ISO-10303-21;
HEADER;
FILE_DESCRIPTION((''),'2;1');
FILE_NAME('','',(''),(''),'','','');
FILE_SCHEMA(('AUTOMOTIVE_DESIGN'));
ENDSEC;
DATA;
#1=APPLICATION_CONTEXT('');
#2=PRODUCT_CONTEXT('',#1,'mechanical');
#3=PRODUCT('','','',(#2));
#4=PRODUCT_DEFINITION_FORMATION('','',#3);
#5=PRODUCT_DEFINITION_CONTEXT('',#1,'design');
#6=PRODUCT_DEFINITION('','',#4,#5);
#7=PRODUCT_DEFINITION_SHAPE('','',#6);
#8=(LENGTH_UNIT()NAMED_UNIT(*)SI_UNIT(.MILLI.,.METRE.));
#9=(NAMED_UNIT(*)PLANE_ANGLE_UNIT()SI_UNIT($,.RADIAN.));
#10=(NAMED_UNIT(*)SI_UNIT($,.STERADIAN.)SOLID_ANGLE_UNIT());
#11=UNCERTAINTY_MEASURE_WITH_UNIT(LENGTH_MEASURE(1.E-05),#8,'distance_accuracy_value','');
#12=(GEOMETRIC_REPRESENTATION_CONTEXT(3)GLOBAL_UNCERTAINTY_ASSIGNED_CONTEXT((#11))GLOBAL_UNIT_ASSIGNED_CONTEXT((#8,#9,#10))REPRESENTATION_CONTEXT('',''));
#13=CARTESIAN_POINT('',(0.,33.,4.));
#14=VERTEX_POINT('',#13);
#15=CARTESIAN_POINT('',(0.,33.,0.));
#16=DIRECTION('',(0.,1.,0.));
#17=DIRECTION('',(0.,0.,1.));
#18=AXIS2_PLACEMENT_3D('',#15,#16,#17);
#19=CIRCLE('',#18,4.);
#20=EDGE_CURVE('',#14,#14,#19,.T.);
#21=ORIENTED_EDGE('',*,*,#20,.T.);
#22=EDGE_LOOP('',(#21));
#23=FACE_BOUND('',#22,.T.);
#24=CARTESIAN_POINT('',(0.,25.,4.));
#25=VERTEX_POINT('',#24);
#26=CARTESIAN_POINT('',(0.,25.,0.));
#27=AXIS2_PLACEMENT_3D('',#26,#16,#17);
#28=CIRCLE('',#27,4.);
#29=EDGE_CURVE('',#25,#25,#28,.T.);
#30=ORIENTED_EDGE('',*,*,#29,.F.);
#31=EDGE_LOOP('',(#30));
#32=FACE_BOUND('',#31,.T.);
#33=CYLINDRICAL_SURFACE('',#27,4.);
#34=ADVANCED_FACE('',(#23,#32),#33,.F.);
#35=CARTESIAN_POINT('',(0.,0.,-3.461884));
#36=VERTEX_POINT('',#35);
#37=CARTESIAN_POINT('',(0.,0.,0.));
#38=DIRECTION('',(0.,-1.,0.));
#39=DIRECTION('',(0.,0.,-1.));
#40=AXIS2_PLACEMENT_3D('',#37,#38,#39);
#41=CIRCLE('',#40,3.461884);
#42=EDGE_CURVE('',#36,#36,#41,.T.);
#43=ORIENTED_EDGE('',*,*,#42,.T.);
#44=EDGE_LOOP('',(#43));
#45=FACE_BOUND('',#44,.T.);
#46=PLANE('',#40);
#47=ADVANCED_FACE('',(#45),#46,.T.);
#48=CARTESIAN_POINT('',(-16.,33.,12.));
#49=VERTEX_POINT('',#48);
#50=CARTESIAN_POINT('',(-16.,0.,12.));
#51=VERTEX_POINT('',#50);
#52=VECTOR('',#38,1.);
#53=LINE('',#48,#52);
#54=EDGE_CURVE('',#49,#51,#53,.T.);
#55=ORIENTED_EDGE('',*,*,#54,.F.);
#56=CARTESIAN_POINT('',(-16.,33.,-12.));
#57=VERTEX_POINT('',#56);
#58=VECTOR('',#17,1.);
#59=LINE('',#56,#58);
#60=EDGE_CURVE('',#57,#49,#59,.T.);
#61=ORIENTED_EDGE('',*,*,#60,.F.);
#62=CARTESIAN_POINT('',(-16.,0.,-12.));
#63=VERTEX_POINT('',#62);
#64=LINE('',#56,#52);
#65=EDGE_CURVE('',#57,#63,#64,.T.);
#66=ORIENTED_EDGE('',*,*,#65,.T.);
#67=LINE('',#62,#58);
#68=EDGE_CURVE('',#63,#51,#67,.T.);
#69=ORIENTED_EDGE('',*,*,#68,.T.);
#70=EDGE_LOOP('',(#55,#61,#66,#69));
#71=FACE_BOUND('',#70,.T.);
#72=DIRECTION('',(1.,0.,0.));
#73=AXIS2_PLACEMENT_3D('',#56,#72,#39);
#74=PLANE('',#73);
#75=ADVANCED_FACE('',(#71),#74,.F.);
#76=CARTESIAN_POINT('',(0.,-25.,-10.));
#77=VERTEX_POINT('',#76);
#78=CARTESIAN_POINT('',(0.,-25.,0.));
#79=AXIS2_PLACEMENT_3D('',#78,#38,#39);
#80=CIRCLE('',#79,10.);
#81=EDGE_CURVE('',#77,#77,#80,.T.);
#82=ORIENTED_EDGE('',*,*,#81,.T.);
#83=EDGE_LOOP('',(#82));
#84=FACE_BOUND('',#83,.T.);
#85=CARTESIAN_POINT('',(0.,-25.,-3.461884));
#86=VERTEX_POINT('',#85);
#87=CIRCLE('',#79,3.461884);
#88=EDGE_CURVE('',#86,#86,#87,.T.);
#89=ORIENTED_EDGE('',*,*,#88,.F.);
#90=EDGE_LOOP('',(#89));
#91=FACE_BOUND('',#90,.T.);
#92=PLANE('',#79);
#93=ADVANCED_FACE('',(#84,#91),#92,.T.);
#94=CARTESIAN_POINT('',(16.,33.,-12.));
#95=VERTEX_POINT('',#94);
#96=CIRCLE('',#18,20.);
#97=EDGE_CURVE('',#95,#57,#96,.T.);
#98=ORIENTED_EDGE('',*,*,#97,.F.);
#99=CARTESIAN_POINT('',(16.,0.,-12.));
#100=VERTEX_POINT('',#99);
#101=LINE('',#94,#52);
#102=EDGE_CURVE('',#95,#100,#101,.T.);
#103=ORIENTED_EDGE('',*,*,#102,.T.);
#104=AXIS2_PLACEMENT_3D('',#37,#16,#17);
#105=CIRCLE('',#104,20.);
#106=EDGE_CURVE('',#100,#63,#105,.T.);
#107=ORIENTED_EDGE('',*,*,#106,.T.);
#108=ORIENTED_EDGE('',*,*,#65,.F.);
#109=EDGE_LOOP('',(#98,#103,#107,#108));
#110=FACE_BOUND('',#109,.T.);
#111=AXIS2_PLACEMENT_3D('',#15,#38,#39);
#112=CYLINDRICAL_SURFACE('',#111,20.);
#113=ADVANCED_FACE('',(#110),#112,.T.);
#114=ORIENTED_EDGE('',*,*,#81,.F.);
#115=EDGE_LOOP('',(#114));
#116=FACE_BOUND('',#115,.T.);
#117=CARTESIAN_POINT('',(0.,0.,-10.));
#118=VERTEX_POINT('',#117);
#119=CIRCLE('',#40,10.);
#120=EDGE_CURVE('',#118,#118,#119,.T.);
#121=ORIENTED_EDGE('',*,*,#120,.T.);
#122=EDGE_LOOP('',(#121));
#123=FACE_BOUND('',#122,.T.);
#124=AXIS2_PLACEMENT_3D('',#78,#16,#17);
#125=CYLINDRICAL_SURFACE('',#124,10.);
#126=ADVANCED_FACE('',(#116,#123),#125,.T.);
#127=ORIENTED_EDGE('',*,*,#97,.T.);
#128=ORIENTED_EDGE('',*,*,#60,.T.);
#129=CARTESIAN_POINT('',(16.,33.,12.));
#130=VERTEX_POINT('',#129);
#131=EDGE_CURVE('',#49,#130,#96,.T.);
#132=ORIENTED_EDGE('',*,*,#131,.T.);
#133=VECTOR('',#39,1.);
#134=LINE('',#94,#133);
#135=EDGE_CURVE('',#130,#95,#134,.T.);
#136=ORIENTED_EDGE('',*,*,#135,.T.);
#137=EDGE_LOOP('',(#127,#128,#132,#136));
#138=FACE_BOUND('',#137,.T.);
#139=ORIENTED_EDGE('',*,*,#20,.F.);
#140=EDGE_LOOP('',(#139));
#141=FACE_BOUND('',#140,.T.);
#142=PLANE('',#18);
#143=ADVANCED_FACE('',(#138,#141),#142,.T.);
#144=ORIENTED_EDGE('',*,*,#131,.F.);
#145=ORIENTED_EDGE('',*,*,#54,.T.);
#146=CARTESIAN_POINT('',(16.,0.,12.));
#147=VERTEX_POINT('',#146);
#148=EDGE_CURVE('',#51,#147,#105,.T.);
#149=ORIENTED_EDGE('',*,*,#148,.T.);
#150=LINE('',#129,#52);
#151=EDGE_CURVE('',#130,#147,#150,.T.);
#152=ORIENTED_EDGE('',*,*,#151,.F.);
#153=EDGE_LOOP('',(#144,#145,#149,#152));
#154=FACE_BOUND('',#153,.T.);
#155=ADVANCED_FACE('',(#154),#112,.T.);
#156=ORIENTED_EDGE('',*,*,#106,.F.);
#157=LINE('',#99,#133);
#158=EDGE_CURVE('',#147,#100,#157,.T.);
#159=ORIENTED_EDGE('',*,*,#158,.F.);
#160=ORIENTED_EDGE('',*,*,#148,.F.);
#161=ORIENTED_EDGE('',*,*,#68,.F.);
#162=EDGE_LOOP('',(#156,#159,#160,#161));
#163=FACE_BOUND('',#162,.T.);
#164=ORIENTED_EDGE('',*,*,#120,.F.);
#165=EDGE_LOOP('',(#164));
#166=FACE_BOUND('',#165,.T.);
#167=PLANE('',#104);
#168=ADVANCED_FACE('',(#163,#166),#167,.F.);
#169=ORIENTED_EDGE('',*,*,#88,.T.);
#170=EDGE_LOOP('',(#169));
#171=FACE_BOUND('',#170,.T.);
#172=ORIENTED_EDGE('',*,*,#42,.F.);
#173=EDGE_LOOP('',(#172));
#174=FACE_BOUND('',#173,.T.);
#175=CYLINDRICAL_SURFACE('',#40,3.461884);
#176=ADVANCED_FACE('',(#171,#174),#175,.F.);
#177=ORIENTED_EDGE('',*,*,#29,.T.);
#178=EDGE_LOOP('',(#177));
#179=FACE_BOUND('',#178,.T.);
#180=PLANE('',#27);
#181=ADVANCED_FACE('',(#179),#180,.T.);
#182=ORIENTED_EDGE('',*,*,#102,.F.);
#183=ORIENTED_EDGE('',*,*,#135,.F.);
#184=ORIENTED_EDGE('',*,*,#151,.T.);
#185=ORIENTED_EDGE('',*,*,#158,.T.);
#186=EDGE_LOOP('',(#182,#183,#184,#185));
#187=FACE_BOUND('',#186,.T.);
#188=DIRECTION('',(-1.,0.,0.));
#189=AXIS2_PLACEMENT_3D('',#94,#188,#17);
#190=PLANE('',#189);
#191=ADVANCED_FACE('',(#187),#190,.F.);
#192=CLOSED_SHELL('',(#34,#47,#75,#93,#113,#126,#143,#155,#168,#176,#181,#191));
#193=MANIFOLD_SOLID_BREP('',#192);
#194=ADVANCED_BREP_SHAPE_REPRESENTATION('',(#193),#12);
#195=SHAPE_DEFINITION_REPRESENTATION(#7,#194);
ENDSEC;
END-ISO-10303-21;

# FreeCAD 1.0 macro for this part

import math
import FreeCAD as App
import Part
import Sketcher
from FreeCAD import Vector
Q = App.Units.Quantity

doc = App.newDocument("Part")
body = doc.addObject("PartDesign::Body", "Body")

sketch1 = body.newObject("Sketcher::SketchObject", "Sketch")
sketch1.AttachmentSupport = (doc.getObject("XZ_Plane"), [""])
sketch1.MapMode = "FlatFace"
sketch1.addGeometry([
    Part.LineSegment(Vector(-16, -12, 0), Vector(-16, 12, 0)),
    Part.ArcOfCircle(Part.Circle(Vector(0, 0, 0), Vector(0, 0, 1), 20), math.radians(37), math.radians(143)),
    Part.LineSegment(Vector(16, 12, 0), Vector(16, -12, 0)),
    Part.ArcOfCircle(Part.Circle(Vector(0, 0, 0), Vector(0, 0, 1), 20), math.radians(-143), math.radians(-37)),
], False)
sketch1.addConstraint([
    Sketcher.Constraint("Coincident", 0, 2, 1, 2),
    Sketcher.Constraint("Coincident", 1, 1, 2, 1),
    Sketcher.Constraint("Coincident", 2, 2, 3, 2),
    Sketcher.Constraint("Coincident", 3, 1, 0, 1),
    Sketcher.Constraint("Vertical", 0),
    Sketcher.Constraint("Vertical", 2),
    Sketcher.Constraint("Coincident", 1, 3, -1, 1),
    Sketcher.Constraint("Coincident", 3, 3, -1, 1),
    Sketcher.Constraint("Equal", 1, 3),
    Sketcher.Constraint("Horizontal", 0, 2, 1, 1),
    Sketcher.Constraint("Radius", 1, Q("20 mm")),
    Sketcher.Constraint("DistanceY", 0, 1, 0, 2, Q("24 mm")),
])
pad1 = body.newObject("PartDesign::Pad", "Pad")
pad1.Profile = sketch1
pad1.Length = 33
pad1.Reversed = True

sketch2 = body.newObject("Sketcher::SketchObject", "Sketch001")
sketch2.AttachmentSupport = (doc.getObject("XZ_Plane"), [""])
sketch2.MapMode = "FlatFace"
sketch2.addGeometry(Part.Circle(Vector(0, 0, 0), Vector(0, 0, 1), 10), False)
sketch2.addConstraint([
    Sketcher.Constraint("Coincident", 0, 3, -1, 1),
    Sketcher.Constraint("Diameter", 0, Q("20 mm")),
])
pad2 = body.newObject("PartDesign::Pad", "Pad001")
pad2.Profile = sketch2
pad2.Length = 25

sketch3 = body.newObject("Sketcher::SketchObject", "Sketch002")
sketch3.AttachmentSupport = (doc.getObject("XZ_Plane"), [""])
sketch3.MapMode = "FlatFace"
sketch3.AttachmentOffset = App.Placement(Vector(0, 0, -33), App.Rotation())
sketch3.addGeometry(Part.Circle(Vector(0, 0, 0), Vector(0, 0, 1), 4), False)
sketch3.addConstraint([
    Sketcher.Constraint("Coincident", 0, 3, -1, 1),
    Sketcher.Constraint("Diameter", 0, Q("8 mm")),
])
pocket1 = body.newObject("PartDesign::Pocket", "Pocket")
pocket1.Profile = sketch3
pocket1.Length = 8
pocket1.Reversed = True

sketch4 = body.newObject("Sketcher::SketchObject", "Sketch003")
sketch4.AttachmentSupport = (doc.getObject("XZ_Plane"), [""])
sketch4.MapMode = "FlatFace"
sketch4.AttachmentOffset = App.Placement(Vector(0, 0, 25), App.Rotation())
sketch4.addGeometry(Part.Circle(Vector(0, 0, 0), Vector(0, 0, 1), 3.5), False)
sketch4.addConstraint([
    Sketcher.Constraint("Coincident", 0, 3, -1, 1),
    Sketcher.Constraint("Diameter", 0, Q("6.923768 mm")),
])
pocket2 = body.newObject("PartDesign::Pocket", "Pocket001")
pocket2.Profile = sketch4
pocket2.Length = 25

doc.recompute()
